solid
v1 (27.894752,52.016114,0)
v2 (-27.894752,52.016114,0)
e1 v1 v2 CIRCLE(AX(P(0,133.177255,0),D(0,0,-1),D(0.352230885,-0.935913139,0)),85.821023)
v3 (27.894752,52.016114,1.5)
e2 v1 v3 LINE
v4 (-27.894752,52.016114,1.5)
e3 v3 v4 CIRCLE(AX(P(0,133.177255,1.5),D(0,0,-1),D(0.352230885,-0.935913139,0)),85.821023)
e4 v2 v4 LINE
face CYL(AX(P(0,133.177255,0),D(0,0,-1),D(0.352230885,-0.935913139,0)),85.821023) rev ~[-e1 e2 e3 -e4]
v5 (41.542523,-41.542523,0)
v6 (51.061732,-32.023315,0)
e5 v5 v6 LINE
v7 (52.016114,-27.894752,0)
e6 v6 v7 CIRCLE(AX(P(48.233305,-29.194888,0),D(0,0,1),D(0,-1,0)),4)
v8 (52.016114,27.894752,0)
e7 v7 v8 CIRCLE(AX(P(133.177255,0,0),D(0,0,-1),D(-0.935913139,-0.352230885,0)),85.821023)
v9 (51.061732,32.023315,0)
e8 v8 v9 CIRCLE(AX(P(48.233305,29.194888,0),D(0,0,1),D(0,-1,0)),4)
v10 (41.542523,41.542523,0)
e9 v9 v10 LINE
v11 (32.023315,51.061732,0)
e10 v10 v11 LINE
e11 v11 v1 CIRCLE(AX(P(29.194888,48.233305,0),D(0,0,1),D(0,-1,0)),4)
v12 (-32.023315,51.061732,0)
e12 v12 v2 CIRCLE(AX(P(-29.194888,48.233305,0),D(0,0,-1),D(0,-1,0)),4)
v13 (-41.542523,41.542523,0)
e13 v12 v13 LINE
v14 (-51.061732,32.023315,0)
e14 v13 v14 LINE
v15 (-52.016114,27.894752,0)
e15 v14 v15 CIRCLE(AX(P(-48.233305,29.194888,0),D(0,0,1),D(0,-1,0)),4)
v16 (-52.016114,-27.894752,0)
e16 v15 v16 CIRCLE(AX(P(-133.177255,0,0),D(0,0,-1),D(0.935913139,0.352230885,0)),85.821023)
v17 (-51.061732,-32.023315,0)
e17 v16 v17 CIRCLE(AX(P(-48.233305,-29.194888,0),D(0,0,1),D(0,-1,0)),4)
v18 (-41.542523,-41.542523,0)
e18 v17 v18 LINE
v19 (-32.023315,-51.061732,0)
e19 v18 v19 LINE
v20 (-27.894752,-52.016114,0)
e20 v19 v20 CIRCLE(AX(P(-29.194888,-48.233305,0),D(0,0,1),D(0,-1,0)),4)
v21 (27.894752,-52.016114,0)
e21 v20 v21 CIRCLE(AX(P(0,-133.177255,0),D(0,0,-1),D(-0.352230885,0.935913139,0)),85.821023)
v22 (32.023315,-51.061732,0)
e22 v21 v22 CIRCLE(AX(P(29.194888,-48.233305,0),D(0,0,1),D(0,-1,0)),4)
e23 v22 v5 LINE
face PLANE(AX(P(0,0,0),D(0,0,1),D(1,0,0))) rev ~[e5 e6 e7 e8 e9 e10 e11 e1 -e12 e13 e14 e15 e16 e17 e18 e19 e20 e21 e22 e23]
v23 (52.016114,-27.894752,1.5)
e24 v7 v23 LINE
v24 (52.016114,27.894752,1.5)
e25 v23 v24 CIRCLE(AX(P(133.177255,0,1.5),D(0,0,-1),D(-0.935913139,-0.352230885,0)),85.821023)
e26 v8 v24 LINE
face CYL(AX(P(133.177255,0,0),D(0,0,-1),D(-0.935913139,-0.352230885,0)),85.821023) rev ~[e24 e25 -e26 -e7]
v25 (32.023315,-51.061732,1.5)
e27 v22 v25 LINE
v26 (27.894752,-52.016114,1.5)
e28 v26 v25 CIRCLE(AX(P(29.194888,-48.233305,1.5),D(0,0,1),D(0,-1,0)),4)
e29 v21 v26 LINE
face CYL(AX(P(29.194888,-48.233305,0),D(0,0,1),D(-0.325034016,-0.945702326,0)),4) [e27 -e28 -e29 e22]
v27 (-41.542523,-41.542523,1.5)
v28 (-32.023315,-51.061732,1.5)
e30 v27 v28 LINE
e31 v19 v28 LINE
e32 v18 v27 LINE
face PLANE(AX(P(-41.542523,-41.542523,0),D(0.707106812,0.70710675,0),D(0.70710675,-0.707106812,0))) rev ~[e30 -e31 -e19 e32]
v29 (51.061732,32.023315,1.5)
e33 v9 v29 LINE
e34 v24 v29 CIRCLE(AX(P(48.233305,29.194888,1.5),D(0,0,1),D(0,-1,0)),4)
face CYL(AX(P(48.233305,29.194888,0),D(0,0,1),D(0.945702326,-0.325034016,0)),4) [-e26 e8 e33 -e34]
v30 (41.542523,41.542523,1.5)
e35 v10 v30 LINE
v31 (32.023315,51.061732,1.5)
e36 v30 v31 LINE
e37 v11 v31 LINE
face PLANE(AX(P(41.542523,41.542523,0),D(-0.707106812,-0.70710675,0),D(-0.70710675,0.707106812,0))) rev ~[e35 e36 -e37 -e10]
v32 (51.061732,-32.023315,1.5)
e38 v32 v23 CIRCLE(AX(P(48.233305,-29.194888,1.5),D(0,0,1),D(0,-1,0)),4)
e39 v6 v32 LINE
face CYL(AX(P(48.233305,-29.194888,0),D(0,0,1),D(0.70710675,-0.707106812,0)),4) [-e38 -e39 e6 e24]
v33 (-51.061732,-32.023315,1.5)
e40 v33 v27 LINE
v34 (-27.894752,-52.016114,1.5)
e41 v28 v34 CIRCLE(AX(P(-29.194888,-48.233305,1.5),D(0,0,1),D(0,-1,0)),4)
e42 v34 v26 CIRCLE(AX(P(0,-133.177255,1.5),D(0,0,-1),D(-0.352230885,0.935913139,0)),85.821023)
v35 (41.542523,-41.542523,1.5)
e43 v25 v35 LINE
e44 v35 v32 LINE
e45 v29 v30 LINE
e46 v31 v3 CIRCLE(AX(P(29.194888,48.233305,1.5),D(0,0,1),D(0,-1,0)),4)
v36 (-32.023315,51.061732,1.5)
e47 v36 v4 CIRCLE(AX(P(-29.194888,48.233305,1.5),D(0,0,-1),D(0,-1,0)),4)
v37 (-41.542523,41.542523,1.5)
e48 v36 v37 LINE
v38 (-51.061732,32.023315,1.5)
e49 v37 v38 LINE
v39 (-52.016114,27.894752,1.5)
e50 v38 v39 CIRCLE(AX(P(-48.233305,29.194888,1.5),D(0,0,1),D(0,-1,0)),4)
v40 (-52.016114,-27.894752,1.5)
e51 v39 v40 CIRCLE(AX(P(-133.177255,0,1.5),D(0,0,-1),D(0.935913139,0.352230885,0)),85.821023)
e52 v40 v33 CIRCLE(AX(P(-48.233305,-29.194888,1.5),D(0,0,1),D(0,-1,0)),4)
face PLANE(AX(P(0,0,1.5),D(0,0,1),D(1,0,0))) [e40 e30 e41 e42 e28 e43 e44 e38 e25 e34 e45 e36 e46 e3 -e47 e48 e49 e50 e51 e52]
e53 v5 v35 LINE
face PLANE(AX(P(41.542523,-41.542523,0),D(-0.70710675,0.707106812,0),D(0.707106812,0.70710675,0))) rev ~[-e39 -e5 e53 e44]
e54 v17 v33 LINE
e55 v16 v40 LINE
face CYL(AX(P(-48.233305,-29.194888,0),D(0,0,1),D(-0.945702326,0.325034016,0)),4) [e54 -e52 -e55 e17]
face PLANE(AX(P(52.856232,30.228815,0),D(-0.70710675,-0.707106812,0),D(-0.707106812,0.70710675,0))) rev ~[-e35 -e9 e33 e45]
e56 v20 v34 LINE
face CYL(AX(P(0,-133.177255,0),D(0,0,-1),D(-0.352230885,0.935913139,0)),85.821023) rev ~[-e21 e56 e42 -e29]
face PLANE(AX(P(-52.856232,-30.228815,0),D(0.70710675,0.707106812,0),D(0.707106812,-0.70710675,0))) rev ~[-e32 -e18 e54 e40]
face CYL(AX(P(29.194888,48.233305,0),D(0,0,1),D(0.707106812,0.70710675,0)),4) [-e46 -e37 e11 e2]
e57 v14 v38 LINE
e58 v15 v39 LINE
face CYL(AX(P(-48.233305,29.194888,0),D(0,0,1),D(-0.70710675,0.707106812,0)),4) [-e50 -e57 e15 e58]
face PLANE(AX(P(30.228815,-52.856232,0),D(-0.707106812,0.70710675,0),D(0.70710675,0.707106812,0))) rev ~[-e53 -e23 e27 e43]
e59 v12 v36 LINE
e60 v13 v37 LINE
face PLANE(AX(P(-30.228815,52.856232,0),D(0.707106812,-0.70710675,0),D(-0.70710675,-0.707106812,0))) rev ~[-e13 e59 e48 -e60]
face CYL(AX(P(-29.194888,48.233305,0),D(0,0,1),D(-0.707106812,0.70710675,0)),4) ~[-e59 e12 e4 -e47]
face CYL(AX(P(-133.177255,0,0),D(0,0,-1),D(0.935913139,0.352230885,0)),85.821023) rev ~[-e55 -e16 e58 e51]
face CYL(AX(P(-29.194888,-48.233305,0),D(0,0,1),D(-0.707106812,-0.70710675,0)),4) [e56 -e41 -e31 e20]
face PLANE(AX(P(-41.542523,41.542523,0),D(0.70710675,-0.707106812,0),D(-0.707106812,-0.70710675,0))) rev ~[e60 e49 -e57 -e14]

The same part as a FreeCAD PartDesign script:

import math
import FreeCAD as App
import Part
import Sketcher

V = App.Vector


def edges_at(feature, points):
    """Names of the edges that pass closest to the given points."""
    edges = feature.Shape.Edges
    near = lambda p: min(range(len(edges)), key=lambda i: edges[i].distToShape(Part.Vertex(*p))[0])
    return sorted({f"Edge{near(p) + 1}" for p in points})

doc = App.newDocument("Part")
body = doc.addObject("PartDesign::Body", "Body")

# Sketch on XY plane
sketch1 = body.newObject("Sketcher::SketchObject", "Sketch")
sketch1.AttachmentSupport = (doc.getObject("XY_Plane"), [""])
sketch1.MapMode = "FlatFace"
sketch1.addGeometry([
    Part.LineSegment(V(-30, 53, 0), V(-42, 42, 0)),  # 0
    Part.LineSegment(V(-42, 42, 0), V(-53, 30, 0)),  # 1
    Part.ArcOfCircle(Part.Circle(V(-133, 0, 0), V(0, 0, 1), 86), math.radians(-21), math.radians(21)),  # 2
    Part.LineSegment(V(-53, -30, 0), V(-42, -42, 0)),  # 3
    Part.LineSegment(V(-42, -42, 0), V(-30, -53, 0)),  # 4
    Part.ArcOfCircle(Part.Circle(V(0, -133, 0), V(0, 0, 1), 86), math.radians(69), math.radians(111)),  # 5
    Part.LineSegment(V(30, -53, 0), V(42, -42, 0)),  # 6
    Part.LineSegment(V(42, -42, 0), V(53, -30, 0)),  # 7
    Part.ArcOfCircle(Part.Circle(V(133, 0, 0), V(0, 0, 1), 86), math.radians(159), math.radians(201)),  # 8
    Part.LineSegment(V(53, 30, 0), V(42, 42, 0)),  # 9
    Part.LineSegment(V(42, 42, 0), V(30, 53, 0)),  # 10
    Part.ArcOfCircle(Part.Circle(V(0, 133, 0), V(0, 0, 1), 86), math.radians(-111), math.radians(-69)),  # 11
], False)
sketch1.addConstraint([
    Sketcher.Constraint("Coincident", 0, 2, 1, 1),
    Sketcher.Constraint("Coincident", 1, 2, 2, 2),
    Sketcher.Constraint("Coincident", 2, 1, 3, 1),
    Sketcher.Constraint("Coincident", 3, 2, 4, 1),
    Sketcher.Constraint("Coincident", 4, 2, 5, 2),
    Sketcher.Constraint("Coincident", 5, 1, 6, 1),
    Sketcher.Constraint("Coincident", 6, 2, 7, 1),
    Sketcher.Constraint("Coincident", 7, 2, 8, 2),
    Sketcher.Constraint("Coincident", 8, 1, 9, 1),
    Sketcher.Constraint("Coincident", 9, 2, 10, 1),
    Sketcher.Constraint("Coincident", 10, 2, 11, 2),
    Sketcher.Constraint("Coincident", 11, 1, 0, 1),
    Sketcher.Constraint("Equal", 2, 5),
    Sketcher.Constraint("Equal", 5, 8),
    Sketcher.Constraint("Equal", 8, 11),
    Sketcher.Constraint("Symmetric", 2, 3, 8, 3, -1, 1),
    Sketcher.Constraint("Symmetric", 5, 3, 11, 3, -1, 1),
    Sketcher.Constraint("Symmetric", 0, 2, 6, 2, -1, 1),
    Sketcher.Constraint("Symmetric", 3, 2, 9, 2, -1, 1),
    Sketcher.Constraint("Symmetric", 4, 2, 5, 1, -2),
    Sketcher.Constraint("Symmetric", 3, 2, 6, 2, -2),
    Sketcher.Constraint("Symmetric", 2, 1, 7, 2, -2),
    Sketcher.Constraint("Parallel", 0, 1),
    Sketcher.Constraint("Perpendicular", 1, 3),
    Sketcher.Constraint("Parallel", 3, 4),
    Sketcher.Constraint("Perpendicular", 4, 6),
    Sketcher.Constraint("Perpendicular", 7, 9),
    Sketcher.Constraint("Parallel", 9, 10),
    Sketcher.Constraint("Equal", 0, 1),
    Sketcher.Constraint("Distance", 0, 16.0),
    Sketcher.Constraint("Radius", 2, 85.821023),
    Sketcher.Constraint("DistanceX", 2, 3, 8, 3, 266.354511),
    Sketcher.Constraint("DistanceY", 5, 3, 11, 3, 266.354511),
])
pad1 = body.newObject("PartDesign::Pad", "Pad")
pad1.Profile = sketch1
pad1.Length = 1.5
doc.recompute()

fillet = body.newObject("PartDesign::Fillet", "Fillet")
fillet.Base = (pad1, edges_at(pad1, [
    (-52.856, 30.229, 0.75),
    (-30.229, 52.856, 0.75),
    (30.229, 52.856, 0.75),
    (52.856, 30.229, 0.75),
    (52.856, -30.229, 0.75),
    (30.229, -52.856, 0.75),
    (-30.229, -52.856, 0.75),
    (-52.856, -30.229, 0.75),
]))
fillet.Radius = 4

doc.recompute()
